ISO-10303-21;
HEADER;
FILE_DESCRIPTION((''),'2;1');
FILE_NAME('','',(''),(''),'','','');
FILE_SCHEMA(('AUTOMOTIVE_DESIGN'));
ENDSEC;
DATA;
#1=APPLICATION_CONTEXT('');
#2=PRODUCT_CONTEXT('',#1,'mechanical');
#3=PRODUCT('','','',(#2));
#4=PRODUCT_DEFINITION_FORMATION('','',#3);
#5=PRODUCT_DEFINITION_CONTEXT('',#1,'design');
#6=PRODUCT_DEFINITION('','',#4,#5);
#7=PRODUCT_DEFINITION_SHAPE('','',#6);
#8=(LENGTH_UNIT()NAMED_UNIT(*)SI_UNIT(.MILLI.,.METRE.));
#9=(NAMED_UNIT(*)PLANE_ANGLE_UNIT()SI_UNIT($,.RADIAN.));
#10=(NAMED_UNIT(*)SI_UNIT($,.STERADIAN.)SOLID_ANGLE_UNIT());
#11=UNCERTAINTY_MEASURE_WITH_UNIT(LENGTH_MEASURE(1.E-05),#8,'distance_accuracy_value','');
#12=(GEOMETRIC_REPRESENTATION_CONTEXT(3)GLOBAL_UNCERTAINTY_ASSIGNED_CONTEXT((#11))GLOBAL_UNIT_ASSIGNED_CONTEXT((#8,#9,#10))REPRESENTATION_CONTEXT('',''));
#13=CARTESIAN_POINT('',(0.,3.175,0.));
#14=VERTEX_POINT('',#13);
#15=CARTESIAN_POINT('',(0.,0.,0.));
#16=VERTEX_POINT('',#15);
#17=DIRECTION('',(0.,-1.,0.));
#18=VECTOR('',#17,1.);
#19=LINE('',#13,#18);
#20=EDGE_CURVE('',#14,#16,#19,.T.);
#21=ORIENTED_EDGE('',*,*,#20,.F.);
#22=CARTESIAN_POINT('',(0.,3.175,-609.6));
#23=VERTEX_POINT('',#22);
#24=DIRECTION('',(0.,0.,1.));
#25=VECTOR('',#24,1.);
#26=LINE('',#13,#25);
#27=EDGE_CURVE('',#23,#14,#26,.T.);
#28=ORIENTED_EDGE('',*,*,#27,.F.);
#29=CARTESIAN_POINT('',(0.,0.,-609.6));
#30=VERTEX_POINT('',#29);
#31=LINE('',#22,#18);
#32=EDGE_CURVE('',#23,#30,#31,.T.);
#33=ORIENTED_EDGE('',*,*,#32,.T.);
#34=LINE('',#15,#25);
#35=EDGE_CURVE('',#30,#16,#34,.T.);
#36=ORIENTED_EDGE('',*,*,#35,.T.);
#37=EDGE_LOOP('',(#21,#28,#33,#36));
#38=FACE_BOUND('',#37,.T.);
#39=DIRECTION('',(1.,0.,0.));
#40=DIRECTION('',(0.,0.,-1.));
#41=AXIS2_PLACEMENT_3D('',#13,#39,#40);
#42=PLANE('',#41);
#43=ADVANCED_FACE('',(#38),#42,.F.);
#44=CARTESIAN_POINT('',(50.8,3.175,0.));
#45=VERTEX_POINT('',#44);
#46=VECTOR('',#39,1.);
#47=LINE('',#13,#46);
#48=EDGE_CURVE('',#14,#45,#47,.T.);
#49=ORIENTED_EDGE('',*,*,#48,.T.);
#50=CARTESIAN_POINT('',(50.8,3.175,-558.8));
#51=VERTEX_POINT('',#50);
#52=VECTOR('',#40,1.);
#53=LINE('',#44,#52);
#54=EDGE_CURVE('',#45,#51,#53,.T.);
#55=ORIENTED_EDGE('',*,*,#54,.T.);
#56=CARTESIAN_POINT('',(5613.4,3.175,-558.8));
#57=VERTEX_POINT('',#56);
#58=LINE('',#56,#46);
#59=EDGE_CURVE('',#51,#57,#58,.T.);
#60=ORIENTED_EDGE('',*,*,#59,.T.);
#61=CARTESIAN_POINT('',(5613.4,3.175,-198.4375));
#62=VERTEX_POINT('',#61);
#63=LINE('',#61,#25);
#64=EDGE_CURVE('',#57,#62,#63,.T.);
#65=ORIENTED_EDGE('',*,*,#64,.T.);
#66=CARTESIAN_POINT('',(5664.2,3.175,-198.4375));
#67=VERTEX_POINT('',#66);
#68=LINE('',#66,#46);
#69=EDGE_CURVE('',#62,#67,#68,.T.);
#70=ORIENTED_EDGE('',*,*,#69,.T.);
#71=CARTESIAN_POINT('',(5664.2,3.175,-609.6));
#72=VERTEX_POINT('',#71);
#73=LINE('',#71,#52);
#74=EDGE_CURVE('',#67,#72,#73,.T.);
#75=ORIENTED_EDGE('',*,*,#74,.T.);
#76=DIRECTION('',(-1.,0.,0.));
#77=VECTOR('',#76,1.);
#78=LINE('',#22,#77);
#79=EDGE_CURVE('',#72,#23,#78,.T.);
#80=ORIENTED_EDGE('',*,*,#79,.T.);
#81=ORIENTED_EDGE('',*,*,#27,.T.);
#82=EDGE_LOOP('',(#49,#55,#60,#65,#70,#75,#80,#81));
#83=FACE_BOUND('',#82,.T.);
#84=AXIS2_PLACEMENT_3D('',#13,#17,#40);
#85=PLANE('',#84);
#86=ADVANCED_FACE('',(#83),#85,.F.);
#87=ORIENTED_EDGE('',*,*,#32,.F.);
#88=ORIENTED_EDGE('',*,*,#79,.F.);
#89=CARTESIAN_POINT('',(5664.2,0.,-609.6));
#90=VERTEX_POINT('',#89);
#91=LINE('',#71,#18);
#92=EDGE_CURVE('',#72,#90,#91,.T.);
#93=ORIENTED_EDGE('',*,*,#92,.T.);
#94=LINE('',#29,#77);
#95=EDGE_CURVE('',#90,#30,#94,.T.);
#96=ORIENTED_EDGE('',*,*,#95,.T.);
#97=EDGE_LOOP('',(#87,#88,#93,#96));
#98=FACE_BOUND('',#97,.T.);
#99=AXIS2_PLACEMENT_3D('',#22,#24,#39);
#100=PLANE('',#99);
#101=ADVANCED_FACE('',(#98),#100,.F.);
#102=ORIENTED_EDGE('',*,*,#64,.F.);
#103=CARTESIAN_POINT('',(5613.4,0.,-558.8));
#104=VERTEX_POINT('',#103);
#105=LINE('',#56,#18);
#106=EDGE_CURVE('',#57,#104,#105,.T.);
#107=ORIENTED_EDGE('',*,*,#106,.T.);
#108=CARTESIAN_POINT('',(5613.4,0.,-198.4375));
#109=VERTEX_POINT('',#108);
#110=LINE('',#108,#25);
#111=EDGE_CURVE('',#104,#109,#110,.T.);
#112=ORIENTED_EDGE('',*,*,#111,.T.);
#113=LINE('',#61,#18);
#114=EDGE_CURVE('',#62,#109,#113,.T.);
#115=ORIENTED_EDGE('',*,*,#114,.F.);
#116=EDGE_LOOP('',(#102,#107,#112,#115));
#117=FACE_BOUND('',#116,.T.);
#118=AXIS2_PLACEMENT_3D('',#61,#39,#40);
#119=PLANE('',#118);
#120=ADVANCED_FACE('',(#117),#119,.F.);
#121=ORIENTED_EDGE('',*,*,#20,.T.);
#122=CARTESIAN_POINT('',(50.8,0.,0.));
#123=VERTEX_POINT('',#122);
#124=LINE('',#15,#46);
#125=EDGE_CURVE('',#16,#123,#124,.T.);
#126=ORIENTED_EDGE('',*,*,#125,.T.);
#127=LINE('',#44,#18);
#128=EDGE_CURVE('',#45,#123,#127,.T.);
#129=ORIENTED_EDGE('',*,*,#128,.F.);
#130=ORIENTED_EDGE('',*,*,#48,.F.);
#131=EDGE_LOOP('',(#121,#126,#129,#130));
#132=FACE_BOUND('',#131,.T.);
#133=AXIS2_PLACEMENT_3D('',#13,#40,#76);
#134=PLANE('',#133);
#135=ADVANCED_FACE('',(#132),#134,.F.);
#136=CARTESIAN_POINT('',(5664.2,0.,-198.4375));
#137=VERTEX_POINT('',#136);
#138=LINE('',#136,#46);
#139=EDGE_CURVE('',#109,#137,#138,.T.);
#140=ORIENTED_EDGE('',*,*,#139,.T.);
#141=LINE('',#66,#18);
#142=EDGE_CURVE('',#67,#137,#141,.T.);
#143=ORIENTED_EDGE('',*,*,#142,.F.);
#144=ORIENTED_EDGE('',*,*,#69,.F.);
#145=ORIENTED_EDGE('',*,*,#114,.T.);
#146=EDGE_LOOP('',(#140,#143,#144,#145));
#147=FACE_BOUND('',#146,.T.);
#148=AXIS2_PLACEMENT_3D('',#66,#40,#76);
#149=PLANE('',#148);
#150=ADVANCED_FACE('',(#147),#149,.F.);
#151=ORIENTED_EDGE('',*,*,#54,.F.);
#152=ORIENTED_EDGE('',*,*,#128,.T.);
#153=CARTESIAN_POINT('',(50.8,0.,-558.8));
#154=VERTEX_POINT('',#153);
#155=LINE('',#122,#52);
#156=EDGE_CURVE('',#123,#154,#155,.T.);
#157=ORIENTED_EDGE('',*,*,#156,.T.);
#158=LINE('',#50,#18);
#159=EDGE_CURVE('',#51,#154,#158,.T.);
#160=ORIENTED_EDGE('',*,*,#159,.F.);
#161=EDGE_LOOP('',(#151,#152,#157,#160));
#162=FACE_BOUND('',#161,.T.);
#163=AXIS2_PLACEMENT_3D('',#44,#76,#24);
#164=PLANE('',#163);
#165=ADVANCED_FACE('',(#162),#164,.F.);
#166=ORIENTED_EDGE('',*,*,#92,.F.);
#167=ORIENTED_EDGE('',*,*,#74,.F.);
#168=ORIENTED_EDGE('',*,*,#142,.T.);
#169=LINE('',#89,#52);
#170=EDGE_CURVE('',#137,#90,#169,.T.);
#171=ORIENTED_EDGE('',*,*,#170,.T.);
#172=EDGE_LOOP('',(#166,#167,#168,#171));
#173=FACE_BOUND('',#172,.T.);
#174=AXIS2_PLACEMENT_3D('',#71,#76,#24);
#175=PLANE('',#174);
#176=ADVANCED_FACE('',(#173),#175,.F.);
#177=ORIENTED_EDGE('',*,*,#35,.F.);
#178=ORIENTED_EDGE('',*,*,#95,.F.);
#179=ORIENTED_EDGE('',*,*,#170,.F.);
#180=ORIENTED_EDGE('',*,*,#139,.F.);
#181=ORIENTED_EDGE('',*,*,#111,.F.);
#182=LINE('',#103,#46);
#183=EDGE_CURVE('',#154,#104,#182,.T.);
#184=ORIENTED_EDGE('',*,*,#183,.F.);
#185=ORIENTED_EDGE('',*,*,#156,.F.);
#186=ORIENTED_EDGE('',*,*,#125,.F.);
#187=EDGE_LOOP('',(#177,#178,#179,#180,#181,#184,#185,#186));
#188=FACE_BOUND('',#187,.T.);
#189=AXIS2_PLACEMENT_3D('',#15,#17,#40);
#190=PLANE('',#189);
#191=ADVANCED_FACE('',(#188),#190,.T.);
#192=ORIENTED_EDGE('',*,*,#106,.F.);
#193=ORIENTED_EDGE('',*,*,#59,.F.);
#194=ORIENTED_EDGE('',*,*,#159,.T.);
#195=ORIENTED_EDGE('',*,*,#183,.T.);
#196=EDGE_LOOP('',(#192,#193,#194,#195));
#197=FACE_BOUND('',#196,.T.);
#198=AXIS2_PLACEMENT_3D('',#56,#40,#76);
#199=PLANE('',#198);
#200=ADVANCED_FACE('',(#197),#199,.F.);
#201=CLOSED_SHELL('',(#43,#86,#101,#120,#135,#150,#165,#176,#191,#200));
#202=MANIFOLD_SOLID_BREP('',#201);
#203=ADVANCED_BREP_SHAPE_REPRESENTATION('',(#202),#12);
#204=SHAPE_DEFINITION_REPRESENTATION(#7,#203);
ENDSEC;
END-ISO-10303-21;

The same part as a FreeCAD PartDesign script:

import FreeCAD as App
import Part
import Sketcher
Q = App.Units.Quantity

doc = App.newDocument("Part")
body = doc.addObject("PartDesign::Body", "Body")

# Sketch on XZ plane
sketch1 = body.newObject("Sketcher::SketchObject", "Sketch")
sketch1.AttachmentSupport = (doc.getObject("XZ_Plane"), [""])
sketch1.MapMode = "FlatFace"
sketch1.addGeometry([
    Part.LineSegment(App.Vector(5664, -610, 0), App.Vector(0, -610, 0)),  # 0
    Part.LineSegment(App.Vector(0, -610, 0), App.Vector(0, 0, 0)),  # 1
    Part.LineSegment(App.Vector(0, 0, 0), App.Vector(51, 0, 0)),  # 2
    Part.LineSegment(App.Vector(51, 0, 0), App.Vector(51, -559, 0)),  # 3
    Part.LineSegment(App.Vector(51, -559, 0), App.Vector(5613, -559, 0)),  # 4
    Part.LineSegment(App.Vector(5613, -559, 0), App.Vector(5613, -198, 0)),  # 5
    Part.LineSegment(App.Vector(5613, -198, 0), App.Vector(5664, -198, 0)),  # 6
    Part.LineSegment(App.Vector(5664, -198, 0), App.Vector(5664, -610, 0)),  # 7
], False)
sketch1.addConstraint([
    Sketcher.Constraint("Coincident", 0, 2, 1, 1),
    Sketcher.Constraint("Coincident", 1, 2, 2, 1),
    Sketcher.Constraint("Coincident", 2, 2, 3, 1),
    Sketcher.Constraint("Coincident", 3, 2, 4, 1),
    Sketcher.Constraint("Coincident", 4, 2, 5, 1),
    Sketcher.Constraint("Coincident", 5, 2, 6, 1),
    Sketcher.Constraint("Coincident", 6, 2, 7, 1),
    Sketcher.Constraint("Coincident", 7, 2, 0, 1),
    Sketcher.Constraint("Horizontal", 0),
    Sketcher.Constraint("Vertical", 1),
    Sketcher.Constraint("Horizontal", 2),
    Sketcher.Constraint("Vertical", 3),
    Sketcher.Constraint("Horizontal", 4),
    Sketcher.Constraint("Vertical", 5),
    Sketcher.Constraint("Horizontal", 6),
    Sketcher.Constraint("Vertical", 7),
    Sketcher.Constraint("Coincident", 1, 2, -1, 1),
    Sketcher.Constraint("Equal", 2, 6),
    Sketcher.Constraint("DistanceX", 0, 2, 0, 1, Q("223 in")),
    Sketcher.Constraint("DistanceX", 2, 1, 2, 2, Q("2 in")),
    Sketcher.Constraint("DistanceY", 1, 1, 1, 2, Q("24 in")),
    Sketcher.Constraint("DistanceY", 3, 2, 3, 1, Q("22 in")),
    Sketcher.Constraint("DistanceY", 5, 1, 5, 2, Q("14.1875 in")),
])
pad1 = body.newObject("PartDesign::Pad", "Pad")
pad1.Profile = sketch1
pad1.Length = Q("0.125 in")
pad1.Reversed = True

doc.recompute()
